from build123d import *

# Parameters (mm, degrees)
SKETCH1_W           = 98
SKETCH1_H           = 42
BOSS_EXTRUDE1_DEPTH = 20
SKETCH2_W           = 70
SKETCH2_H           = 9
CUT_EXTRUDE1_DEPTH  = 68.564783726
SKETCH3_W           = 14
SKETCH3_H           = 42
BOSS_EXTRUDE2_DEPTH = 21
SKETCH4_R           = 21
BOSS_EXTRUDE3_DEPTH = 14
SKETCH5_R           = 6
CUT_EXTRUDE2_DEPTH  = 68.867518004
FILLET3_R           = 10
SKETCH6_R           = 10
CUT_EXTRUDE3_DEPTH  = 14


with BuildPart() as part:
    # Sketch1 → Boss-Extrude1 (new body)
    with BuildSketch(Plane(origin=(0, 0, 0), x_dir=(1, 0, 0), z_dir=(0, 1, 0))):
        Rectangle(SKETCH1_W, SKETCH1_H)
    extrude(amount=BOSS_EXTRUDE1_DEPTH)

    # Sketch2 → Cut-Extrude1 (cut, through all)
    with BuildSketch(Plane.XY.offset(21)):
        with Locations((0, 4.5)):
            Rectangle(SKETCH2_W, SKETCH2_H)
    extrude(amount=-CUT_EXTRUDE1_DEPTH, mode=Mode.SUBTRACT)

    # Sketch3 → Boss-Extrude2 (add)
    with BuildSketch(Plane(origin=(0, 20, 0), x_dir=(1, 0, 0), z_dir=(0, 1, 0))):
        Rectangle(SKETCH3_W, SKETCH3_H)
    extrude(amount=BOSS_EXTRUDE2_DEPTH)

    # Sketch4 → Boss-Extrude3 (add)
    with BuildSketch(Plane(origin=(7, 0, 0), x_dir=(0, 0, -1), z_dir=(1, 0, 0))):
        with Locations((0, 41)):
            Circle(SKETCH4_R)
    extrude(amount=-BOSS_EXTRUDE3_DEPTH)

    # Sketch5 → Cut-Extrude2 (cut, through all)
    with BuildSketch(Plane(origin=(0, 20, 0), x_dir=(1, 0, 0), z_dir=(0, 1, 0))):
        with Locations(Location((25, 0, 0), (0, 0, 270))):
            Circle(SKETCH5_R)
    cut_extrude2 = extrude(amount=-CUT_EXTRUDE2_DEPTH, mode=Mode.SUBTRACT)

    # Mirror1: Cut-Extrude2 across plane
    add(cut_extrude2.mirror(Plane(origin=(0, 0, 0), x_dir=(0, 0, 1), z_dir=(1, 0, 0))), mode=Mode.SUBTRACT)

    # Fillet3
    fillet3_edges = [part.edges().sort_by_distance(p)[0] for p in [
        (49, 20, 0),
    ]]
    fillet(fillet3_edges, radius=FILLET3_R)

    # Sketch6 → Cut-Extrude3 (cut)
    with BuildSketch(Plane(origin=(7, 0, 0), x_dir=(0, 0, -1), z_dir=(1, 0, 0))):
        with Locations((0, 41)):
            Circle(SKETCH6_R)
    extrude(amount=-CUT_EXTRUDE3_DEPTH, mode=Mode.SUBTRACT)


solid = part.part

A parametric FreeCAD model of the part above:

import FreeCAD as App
import Part
import Sketcher


def edges_at(feature, points):
    """Names of the edges that pass closest to the given points."""
    edges = feature.Shape.Edges
    near = lambda p: min(range(len(edges)), key=lambda i: edges[i].distToShape(Part.Vertex(*p))[0])
    return sorted({f"Edge{near(p) + 1}" for p in points})

doc = App.newDocument("Part")
body = doc.addObject("PartDesign::Body", "Body")

sketch1 = body.newObject("Sketcher::SketchObject", "Sketch")
sketch1.AttachmentSupport = (doc.getObject("XZ_Plane"), [""])
sketch1.MapMode = "FlatFace"
sketch1.addGeometry([
    Part.LineSegment(App.Vector(-49, -21, 0), App.Vector(-49, 21, 0)),
    Part.LineSegment(App.Vector(-49, 21, 0), App.Vector(49, 21, 0)),
    Part.LineSegment(App.Vector(49, 21, 0), App.Vector(49, -21, 0)),
    Part.LineSegment(App.Vector(49, -21, 0), App.Vector(-49, -21, 0)),
], False)
sketch1.addConstraint([
    Sketcher.Constraint("Coincident", 0, 2, 1, 1),
    Sketcher.Constraint("Coincident", 1, 2, 2, 1),
    Sketcher.Constraint("Coincident", 2, 2, 3, 1),
    Sketcher.Constraint("Coincident", 3, 2, 0, 1),
    Sketcher.Constraint("Vertical", 0),
    Sketcher.Constraint("Horizontal", 1),
    Sketcher.Constraint("Vertical", 2),
    Sketcher.Constraint("Horizontal", 3),
    Sketcher.Constraint("Symmetric", 0, 2, 2, 2, -1, 1),
    Sketcher.Constraint("DistanceX", 1, 1, 1, 2, 98.0),
    Sketcher.Constraint("DistanceY", 0, 1, 0, 2, 42.0),
])
pad1 = body.newObject("PartDesign::Pad", "Pad")
pad1.Profile = sketch1
pad1.Length = 20
pad1.Reversed = True

sketch2 = body.newObject("Sketcher::SketchObject", "Sketch001")
sketch2.AttachmentSupport = (doc.getObject("XY_Plane"), [""])
sketch2.MapMode = "FlatFace"
sketch2.AttachmentOffset = App.Placement(App.Vector(0, 0, 21), App.Rotation())
sketch2.addGeometry([
    Part.LineSegment(App.Vector(-35, 9, 0), App.Vector(-35, 0, 0)),
    Part.LineSegment(App.Vector(-35, 0, 0), App.Vector(35, 0, 0)),
    Part.LineSegment(App.Vector(35, 0, 0), App.Vector(35, 9, 0)),
    Part.LineSegment(App.Vector(35, 9, 0), App.Vector(-35, 9, 0)),
], False)
sketch2.addConstraint([
    Sketcher.Constraint("Coincident", 0, 2, 1, 1),
    Sketcher.Constraint("Coincident", 1, 2, 2, 1),
    Sketcher.Constraint("Coincident", 2, 2, 3, 1),
    Sketcher.Constraint("Coincident", 3, 2, 0, 1),
    Sketcher.Constraint("Vertical", 0),
    Sketcher.Constraint("Horizontal", 1),
    Sketcher.Constraint("Vertical", 2),
    Sketcher.Constraint("Horizontal", 3),
    Sketcher.Constraint("Symmetric", 0, 2, 1, 2, -1, 1),
    Sketcher.Constraint("DistanceX", 1, 1, 1, 2, 70.0),
    Sketcher.Constraint("DistanceY", 0, 2, 0, 1, 9.0),
])
pocket1 = body.newObject("PartDesign::Pocket", "Pocket")
pocket1.Profile = sketch2
pocket1.Type = "ThroughAll"

sketch3 = body.newObject("Sketcher::SketchObject", "Sketch002")
sketch3.AttachmentSupport = (doc.getObject("XZ_Plane"), [""])
sketch3.MapMode = "FlatFace"
sketch3.AttachmentOffset = App.Placement(App.Vector(0, 0, -20), App.Rotation())
sketch3.addGeometry([
    Part.LineSegment(App.Vector(-7, -21, 0), App.Vector(-7, 21, 0)),
    Part.LineSegment(App.Vector(-7, 21, 0), App.Vector(7, 21, 0)),
    Part.LineSegment(App.Vector(7, 21, 0), App.Vector(7, -21, 0)),
    Part.LineSegment(App.Vector(7, -21, 0), App.Vector(-7, -21, 0)),
], False)
sketch3.addConstraint([
    Sketcher.Constraint("Coincident", 0, 2, 1, 1),
    Sketcher.Constraint("Coincident", 1, 2, 2, 1),
    Sketcher.Constraint("Coincident", 2, 2, 3, 1),
    Sketcher.Constraint("Coincident", 3, 2, 0, 1),
    Sketcher.Constraint("Vertical", 0),
    Sketcher.Constraint("Horizontal", 1),
    Sketcher.Constraint("Vertical", 2),
    Sketcher.Constraint("Horizontal", 3),
    Sketcher.Constraint("Symmetric", 0, 2, 2, 2, -1, 1),
    Sketcher.Constraint("DistanceX", 1, 1, 1, 2, 14.0),
    Sketcher.Constraint("DistanceY", 0, 1, 0, 2, 42.0),
])
pad2 = body.newObject("PartDesign::Pad", "Pad001")
pad2.Profile = sketch3
pad2.Length = 21
pad2.Reversed = True

sketch4 = body.newObject("Sketcher::SketchObject", "Sketch003")
sketch4.AttachmentSupport = (doc.getObject("YZ_Plane"), [""])
sketch4.MapMode = "FlatFace"
sketch4.AttachmentOffset = App.Placement(App.Vector(0, 0, 7), App.Rotation())
sketch4.addGeometry(Part.Circle(App.Vector(41, 0, 0), App.Vector(0, 0, 1), 21), False)
sketch4.addConstraint([
    Sketcher.Constraint("PointOnObject", 0, 3, -1),
    Sketcher.Constraint("Diameter", 0, 42.0),
    Sketcher.Constraint("DistanceX", -1, 1, 0, 3, 41.0),
])
pad3 = body.newObject("PartDesign::Pad", "Pad002")
pad3.Profile = sketch4
pad3.Length = 14
pad3.Reversed = True

sketch5 = body.newObject("Sketcher::SketchObject", "Sketch004")
sketch5.AttachmentSupport = (doc.getObject("XZ_Plane"), [""])
sketch5.MapMode = "FlatFace"
sketch5.AttachmentOffset = App.Placement(App.Vector(0, 0, -20), App.Rotation())
sketch5.addGeometry(Part.Circle(App.Vector(25, 0, 0), App.Vector(0, 0, 1), 6), False)
sketch5.addConstraint([
    Sketcher.Constraint("PointOnObject", 0, 3, -1),
    Sketcher.Constraint("Diameter", 0, 12.0),
    Sketcher.Constraint("DistanceX", -1, 1, 0, 3, 25.0),
])
pocket2 = body.newObject("PartDesign::Pocket", "Pocket001")
pocket2.Profile = sketch5
pocket2.Type = "ThroughAll"
pocket2.Reversed = True
doc.recompute()

mirrored = body.newObject("PartDesign::Mirrored", "Mirrored")
mirrored.Originals = [pocket2]
mirrored.MirrorPlane = (doc.getObject("YZ_Plane"), [""])
body.Tip = mirrored
doc.recompute()

fillet = body.newObject("PartDesign::Fillet", "Fillet")
fillet.Base = (mirrored, edges_at(mirrored, [(49, 20, 0)]))
fillet.Radius = 10

sketch6 = body.newObject("Sketcher::SketchObject", "Sketch005")
sketch6.AttachmentSupport = (doc.getObject("YZ_Plane"), [""])
sketch6.MapMode = "FlatFace"
sketch6.AttachmentOffset = App.Placement(App.Vector(0, 0, 7), App.Rotation())
sketch6.addGeometry(Part.Circle(App.Vector(41, 0, 0), App.Vector(0, 0, 1), 10), False)
sketch6.addConstraint([
    Sketcher.Constraint("PointOnObject", 0, 3, -1),
    Sketcher.Constraint("Diameter", 0, 20.0),
    Sketcher.Constraint("DistanceX", -1, 1, 0, 3, 41.0),
])
pocket3 = body.newObject("PartDesign::Pocket", "Pocket002")
pocket3.Profile = sketch6
pocket3.Length = 14

doc.recompute()
